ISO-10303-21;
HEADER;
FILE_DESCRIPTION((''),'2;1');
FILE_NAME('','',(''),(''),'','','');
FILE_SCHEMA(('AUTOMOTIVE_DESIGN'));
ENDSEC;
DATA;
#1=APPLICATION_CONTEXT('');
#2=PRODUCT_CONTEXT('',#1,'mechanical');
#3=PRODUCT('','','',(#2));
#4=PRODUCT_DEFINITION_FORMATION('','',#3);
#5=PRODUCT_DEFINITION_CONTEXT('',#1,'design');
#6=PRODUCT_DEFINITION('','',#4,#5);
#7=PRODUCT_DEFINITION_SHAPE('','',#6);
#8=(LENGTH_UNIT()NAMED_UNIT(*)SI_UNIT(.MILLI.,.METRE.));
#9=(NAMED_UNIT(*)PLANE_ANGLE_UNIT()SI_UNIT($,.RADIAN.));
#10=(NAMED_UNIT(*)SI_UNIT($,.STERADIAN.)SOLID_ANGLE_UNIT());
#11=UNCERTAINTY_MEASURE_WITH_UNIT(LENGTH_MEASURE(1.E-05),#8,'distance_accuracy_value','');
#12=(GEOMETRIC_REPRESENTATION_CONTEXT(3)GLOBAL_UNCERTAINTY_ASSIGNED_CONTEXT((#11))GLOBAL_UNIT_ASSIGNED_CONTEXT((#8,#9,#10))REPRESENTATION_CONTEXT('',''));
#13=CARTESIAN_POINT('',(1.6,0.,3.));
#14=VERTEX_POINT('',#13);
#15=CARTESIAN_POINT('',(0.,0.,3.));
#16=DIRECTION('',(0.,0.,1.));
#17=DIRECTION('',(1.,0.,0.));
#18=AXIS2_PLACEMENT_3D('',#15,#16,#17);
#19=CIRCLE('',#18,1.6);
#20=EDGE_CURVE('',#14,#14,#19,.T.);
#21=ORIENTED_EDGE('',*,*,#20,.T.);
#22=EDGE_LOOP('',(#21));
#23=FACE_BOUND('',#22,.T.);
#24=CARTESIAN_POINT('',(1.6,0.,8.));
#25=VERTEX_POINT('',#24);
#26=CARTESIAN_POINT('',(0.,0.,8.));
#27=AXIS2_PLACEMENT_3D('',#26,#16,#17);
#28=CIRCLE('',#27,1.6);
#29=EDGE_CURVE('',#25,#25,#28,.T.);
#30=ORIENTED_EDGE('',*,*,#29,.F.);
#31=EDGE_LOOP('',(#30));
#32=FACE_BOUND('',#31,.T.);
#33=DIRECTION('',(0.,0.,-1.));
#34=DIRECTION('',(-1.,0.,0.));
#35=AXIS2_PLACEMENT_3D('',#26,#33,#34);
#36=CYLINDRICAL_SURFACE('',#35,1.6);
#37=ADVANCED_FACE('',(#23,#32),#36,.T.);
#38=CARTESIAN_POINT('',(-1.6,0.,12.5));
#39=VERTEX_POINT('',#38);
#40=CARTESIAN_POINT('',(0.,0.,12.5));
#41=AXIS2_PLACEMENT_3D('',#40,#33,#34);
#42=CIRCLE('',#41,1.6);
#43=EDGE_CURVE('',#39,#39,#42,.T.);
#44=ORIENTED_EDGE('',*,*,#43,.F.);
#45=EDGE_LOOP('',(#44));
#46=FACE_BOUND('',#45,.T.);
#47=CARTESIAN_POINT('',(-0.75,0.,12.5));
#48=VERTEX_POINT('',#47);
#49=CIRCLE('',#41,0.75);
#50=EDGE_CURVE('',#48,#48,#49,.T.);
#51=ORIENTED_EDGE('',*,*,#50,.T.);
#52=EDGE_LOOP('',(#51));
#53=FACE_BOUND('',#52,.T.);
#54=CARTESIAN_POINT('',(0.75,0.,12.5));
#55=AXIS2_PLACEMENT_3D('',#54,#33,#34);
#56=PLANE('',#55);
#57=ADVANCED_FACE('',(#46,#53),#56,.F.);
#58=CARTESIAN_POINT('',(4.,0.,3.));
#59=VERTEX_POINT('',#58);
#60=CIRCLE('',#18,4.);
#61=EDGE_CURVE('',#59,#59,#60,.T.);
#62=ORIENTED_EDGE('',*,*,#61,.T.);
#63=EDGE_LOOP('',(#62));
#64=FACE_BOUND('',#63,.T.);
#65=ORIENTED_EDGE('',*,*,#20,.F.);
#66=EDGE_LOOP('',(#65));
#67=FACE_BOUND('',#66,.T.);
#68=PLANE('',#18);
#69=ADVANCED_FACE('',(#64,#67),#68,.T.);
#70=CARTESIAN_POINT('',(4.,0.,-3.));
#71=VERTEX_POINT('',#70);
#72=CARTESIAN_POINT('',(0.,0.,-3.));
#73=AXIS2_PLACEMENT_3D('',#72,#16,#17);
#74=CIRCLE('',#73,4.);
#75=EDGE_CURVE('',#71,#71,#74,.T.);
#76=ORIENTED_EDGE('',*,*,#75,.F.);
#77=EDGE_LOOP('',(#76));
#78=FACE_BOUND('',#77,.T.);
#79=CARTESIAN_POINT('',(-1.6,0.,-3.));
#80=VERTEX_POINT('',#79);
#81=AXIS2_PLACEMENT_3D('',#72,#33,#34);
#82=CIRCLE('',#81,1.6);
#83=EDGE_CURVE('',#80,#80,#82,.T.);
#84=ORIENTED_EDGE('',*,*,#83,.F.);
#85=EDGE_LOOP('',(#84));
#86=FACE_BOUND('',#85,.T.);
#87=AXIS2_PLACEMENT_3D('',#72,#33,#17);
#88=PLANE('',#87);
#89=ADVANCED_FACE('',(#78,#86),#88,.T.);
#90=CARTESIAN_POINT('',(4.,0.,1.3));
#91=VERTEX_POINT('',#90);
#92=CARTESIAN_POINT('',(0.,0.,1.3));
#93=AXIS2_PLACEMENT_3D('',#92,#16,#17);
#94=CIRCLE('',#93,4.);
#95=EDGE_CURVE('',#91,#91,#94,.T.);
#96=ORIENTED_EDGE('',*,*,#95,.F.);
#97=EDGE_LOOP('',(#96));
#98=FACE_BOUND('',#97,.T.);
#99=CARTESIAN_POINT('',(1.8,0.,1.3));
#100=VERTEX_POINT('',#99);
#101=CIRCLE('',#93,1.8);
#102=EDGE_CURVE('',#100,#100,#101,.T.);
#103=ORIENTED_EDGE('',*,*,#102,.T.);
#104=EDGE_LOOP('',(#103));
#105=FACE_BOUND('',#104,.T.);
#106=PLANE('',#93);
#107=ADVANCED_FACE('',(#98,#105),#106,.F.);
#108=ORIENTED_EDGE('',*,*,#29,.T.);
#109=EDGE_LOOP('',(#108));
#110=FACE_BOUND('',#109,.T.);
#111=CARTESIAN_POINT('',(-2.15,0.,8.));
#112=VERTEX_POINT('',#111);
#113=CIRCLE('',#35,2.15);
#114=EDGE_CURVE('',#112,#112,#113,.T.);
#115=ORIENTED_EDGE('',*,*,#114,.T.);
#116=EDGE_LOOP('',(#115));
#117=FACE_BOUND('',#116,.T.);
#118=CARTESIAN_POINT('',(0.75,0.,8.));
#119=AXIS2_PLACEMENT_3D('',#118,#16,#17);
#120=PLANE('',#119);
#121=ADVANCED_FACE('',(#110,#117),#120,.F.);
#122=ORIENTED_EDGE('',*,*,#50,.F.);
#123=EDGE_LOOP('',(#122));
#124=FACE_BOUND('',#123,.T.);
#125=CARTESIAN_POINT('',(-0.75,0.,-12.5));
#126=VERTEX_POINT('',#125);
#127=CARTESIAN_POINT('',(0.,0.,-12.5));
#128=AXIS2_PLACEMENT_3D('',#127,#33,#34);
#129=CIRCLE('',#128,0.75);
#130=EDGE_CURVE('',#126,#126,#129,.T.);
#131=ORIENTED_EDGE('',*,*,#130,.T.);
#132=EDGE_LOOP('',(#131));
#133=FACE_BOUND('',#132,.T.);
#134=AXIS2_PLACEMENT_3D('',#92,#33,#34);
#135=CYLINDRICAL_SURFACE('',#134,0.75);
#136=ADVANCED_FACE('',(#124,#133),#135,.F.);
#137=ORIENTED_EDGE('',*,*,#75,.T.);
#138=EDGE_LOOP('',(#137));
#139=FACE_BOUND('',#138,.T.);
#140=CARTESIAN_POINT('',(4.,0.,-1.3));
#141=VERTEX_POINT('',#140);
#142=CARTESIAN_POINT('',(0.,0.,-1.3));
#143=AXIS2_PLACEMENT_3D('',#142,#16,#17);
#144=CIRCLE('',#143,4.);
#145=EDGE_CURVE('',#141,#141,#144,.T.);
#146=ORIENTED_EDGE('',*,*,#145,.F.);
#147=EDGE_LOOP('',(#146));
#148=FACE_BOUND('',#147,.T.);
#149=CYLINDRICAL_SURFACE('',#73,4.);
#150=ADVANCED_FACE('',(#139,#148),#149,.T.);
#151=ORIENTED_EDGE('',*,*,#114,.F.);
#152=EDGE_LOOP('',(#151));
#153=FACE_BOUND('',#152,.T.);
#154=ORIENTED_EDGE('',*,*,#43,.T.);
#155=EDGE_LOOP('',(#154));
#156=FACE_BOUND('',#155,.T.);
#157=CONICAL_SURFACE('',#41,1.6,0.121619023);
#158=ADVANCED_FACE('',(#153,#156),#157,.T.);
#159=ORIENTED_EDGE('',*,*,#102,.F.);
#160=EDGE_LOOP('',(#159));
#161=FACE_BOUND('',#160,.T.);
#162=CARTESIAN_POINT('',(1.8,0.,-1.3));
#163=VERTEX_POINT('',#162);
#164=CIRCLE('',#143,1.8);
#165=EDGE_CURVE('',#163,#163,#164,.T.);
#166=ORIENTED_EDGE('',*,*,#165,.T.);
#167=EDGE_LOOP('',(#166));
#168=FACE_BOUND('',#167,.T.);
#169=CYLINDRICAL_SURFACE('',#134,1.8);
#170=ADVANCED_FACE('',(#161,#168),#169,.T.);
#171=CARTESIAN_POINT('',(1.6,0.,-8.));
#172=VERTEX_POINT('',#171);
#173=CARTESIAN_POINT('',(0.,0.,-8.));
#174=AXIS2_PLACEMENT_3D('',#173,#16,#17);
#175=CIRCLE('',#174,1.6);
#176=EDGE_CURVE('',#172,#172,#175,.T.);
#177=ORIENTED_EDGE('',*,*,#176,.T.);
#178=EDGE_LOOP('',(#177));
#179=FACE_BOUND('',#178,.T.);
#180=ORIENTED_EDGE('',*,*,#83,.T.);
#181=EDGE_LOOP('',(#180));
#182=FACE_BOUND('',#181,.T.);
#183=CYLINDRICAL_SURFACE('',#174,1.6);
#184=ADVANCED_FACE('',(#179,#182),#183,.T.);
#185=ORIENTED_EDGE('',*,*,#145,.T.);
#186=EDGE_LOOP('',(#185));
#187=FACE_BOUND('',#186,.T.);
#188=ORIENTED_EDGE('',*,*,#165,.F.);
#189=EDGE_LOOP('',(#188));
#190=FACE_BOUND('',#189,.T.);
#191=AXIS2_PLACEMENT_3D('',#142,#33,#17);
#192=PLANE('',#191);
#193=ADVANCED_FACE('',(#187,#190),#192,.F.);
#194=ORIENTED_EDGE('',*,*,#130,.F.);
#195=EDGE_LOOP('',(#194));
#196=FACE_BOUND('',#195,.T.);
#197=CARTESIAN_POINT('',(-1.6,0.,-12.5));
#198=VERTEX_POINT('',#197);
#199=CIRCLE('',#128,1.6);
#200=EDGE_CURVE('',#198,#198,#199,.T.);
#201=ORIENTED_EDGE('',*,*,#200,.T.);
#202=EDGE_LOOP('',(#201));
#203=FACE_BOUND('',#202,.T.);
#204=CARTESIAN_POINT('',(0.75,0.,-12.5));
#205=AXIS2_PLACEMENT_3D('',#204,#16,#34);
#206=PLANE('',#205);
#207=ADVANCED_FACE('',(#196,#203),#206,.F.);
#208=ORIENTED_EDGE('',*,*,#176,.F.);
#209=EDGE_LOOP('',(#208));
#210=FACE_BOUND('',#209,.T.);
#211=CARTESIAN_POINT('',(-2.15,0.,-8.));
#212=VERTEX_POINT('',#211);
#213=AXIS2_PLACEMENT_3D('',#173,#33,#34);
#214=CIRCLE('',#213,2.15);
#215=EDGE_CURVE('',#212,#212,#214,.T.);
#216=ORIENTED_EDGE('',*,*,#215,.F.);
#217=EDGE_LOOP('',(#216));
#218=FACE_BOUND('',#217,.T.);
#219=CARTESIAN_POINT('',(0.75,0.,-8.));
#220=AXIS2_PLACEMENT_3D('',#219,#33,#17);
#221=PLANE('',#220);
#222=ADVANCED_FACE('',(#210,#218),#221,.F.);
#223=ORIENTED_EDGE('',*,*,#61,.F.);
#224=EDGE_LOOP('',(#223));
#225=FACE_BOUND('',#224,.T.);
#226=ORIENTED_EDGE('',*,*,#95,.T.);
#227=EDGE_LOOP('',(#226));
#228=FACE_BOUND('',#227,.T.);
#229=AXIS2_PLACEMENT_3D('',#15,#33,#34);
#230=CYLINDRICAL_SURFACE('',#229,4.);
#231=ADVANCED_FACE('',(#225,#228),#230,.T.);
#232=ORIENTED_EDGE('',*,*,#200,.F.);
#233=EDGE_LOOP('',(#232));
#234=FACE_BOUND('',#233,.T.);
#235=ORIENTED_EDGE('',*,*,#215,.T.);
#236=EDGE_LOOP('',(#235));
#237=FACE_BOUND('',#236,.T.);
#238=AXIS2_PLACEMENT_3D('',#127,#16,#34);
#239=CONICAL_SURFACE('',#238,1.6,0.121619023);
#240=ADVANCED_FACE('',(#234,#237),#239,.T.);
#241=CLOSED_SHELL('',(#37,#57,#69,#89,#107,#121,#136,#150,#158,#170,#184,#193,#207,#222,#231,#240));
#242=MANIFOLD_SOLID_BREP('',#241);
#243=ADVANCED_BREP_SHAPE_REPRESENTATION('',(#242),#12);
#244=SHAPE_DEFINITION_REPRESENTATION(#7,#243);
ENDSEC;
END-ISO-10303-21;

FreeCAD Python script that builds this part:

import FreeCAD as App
import Part
import Sketcher

V = App.Vector
Q = App.Units.Quantity


def add_polygon(sketch, points):
    """Adds a closed chain of lines whose ends are joined by coincident constraints."""
    first, n = sketch.GeometryCount, len(points)
    for a, b in zip(points, points[1:] + points[:1]):
        sketch.addGeometry(Part.LineSegment(App.Vector(*a, 0), App.Vector(*b, 0)), False)
    for i in range(n):
        sketch.addConstraint(Sketcher.Constraint("Coincident", first + i, 2, first + (i + 1) % n, 1))

doc = App.newDocument("Part")
body = doc.addObject("PartDesign::Body", "Body")

# Sketch on XY plane
sketch1 = body.newObject("Sketcher::SketchObject", "Sketch")
sketch1.AttachmentSupport = (doc.getObject("XY_Plane"), [""])
sketch1.MapMode = "FlatFace"
sketch1.addGeometry(Part.Circle(V(0, 0, 0), V(0, 0, 1), 1.8), False)
sketch1.addGeometry(Part.Circle(V(0, 0, 0), V(0, 0, 1), 0.8), False)
sketch1.addConstraint(Sketcher.Constraint("Coincident", 0, 3, -1, 1))
sketch1.addConstraint(Sketcher.Constraint("Coincident", 1, 3, -1, 1))
sketch1.addConstraint(Sketcher.Constraint("Diameter", 0, Q("3.6 mm")))
sketch1.addConstraint(Sketcher.Constraint("Diameter", 1, Q("1.5 mm")))
pad1 = body.newObject("PartDesign::Pad", "Pad")
pad1.Profile = sketch1
pad1.Length = 1.3

# Sketch on XY plane
sketch2 = body.newObject("Sketcher::SketchObject", "Sketch001")
sketch2.AttachmentSupport = (doc.getObject("XY_Plane"), [""])
sketch2.MapMode = "FlatFace"
sketch2.AttachmentOffset = App.Placement(V(0, 0, 1.3), App.Rotation())
sketch2.addGeometry(Part.Circle(V(0, 0, 0), V(0, 0, 1), 4), False)
sketch2.addGeometry(Part.Circle(V(0, 0, 0), V(0, 0, 1), 0.8), False)
sketch2.addConstraint(Sketcher.Constraint("Coincident", 0, 3, -1, 1))
sketch2.addConstraint(Sketcher.Constraint("Coincident", 1, 3, -1, 1))
sketch2.addConstraint(Sketcher.Constraint("Diameter", 0, Q("8 mm")))
sketch2.addConstraint(Sketcher.Constraint("Diameter", 1, Q("1.5 mm")))
pad2 = body.newObject("PartDesign::Pad", "Pad001")
pad2.Profile = sketch2
pad2.Length = 1.7

# Sketch on XY plane
sketch3 = body.newObject("Sketcher::SketchObject", "Sketch002")
sketch3.AttachmentSupport = (doc.getObject("XY_Plane"), [""])
sketch3.MapMode = "FlatFace"
sketch3.AttachmentOffset = App.Placement(V(0, 0, 3), App.Rotation())
sketch3.addGeometry(Part.Circle(V(0, 0, 0), V(0, 0, 1), 1.6), False)
sketch3.addGeometry(Part.Circle(V(0, 0, 0), V(0, 0, 1), 0.8), False)
sketch3.addConstraint(Sketcher.Constraint("Coincident", 0, 3, -1, 1))
sketch3.addConstraint(Sketcher.Constraint("Coincident", 1, 3, -1, 1))
sketch3.addConstraint(Sketcher.Constraint("Diameter", 0, Q("3.2 mm")))
sketch3.addConstraint(Sketcher.Constraint("Diameter", 1, Q("1.5 mm")))
pad3 = body.newObject("PartDesign::Pad", "Pad002")
pad3.Profile = sketch3
pad3.Length = 5

# Sketch on XZ plane
sketch4 = body.newObject("Sketcher::SketchObject", "Sketch003")
sketch4.AttachmentSupport = (doc.getObject("XZ_Plane"), [""])
sketch4.MapMode = "FlatFace"
add_polygon(sketch4, [(0.8, 8), (0.8, 12.5), (1.6, 12.5), (2.1, 8)])  # lines 0-3
sketch4.addConstraint(Sketcher.Constraint("Vertical", 0))
sketch4.addConstraint(Sketcher.Constraint("Horizontal", 1))
sketch4.addConstraint(Sketcher.Constraint("Horizontal", 3))
sketch4.addConstraint(Sketcher.Constraint("DistanceX", 3, 2, 3, 1, Q("1.4 mm")))
sketch4.addConstraint(Sketcher.Constraint("DistanceY", 0, 1, 0, 2, Q("4.5 mm")))
sketch4.addConstraint(Sketcher.Constraint("DistanceY", -1, 1, 2, 2, Q("8 mm")))
sketch4.addConstraint(Sketcher.Constraint("DistanceX", 1, 1, 1, 2, Q("0.85 mm")))
sketch4.addConstraint(Sketcher.Constraint("DistanceX", -1, 1, 1, 2, Q("1.6 mm")))
revolution = body.newObject("PartDesign::Revolution", "Revolution")
revolution.Profile = sketch4
revolution.ReferenceAxis = (sketch4, ["V_Axis"])
revolution.Angle = 360
doc.recompute()

mirrored = body.newObject("PartDesign::Mirrored", "Mirrored")
mirrored.Originals = [pad1, pad2, pad3, revolution]
mirrored.MirrorPlane = (doc.getObject("XY_Plane"), [""])
body.Tip = mirrored

doc.recompute()
